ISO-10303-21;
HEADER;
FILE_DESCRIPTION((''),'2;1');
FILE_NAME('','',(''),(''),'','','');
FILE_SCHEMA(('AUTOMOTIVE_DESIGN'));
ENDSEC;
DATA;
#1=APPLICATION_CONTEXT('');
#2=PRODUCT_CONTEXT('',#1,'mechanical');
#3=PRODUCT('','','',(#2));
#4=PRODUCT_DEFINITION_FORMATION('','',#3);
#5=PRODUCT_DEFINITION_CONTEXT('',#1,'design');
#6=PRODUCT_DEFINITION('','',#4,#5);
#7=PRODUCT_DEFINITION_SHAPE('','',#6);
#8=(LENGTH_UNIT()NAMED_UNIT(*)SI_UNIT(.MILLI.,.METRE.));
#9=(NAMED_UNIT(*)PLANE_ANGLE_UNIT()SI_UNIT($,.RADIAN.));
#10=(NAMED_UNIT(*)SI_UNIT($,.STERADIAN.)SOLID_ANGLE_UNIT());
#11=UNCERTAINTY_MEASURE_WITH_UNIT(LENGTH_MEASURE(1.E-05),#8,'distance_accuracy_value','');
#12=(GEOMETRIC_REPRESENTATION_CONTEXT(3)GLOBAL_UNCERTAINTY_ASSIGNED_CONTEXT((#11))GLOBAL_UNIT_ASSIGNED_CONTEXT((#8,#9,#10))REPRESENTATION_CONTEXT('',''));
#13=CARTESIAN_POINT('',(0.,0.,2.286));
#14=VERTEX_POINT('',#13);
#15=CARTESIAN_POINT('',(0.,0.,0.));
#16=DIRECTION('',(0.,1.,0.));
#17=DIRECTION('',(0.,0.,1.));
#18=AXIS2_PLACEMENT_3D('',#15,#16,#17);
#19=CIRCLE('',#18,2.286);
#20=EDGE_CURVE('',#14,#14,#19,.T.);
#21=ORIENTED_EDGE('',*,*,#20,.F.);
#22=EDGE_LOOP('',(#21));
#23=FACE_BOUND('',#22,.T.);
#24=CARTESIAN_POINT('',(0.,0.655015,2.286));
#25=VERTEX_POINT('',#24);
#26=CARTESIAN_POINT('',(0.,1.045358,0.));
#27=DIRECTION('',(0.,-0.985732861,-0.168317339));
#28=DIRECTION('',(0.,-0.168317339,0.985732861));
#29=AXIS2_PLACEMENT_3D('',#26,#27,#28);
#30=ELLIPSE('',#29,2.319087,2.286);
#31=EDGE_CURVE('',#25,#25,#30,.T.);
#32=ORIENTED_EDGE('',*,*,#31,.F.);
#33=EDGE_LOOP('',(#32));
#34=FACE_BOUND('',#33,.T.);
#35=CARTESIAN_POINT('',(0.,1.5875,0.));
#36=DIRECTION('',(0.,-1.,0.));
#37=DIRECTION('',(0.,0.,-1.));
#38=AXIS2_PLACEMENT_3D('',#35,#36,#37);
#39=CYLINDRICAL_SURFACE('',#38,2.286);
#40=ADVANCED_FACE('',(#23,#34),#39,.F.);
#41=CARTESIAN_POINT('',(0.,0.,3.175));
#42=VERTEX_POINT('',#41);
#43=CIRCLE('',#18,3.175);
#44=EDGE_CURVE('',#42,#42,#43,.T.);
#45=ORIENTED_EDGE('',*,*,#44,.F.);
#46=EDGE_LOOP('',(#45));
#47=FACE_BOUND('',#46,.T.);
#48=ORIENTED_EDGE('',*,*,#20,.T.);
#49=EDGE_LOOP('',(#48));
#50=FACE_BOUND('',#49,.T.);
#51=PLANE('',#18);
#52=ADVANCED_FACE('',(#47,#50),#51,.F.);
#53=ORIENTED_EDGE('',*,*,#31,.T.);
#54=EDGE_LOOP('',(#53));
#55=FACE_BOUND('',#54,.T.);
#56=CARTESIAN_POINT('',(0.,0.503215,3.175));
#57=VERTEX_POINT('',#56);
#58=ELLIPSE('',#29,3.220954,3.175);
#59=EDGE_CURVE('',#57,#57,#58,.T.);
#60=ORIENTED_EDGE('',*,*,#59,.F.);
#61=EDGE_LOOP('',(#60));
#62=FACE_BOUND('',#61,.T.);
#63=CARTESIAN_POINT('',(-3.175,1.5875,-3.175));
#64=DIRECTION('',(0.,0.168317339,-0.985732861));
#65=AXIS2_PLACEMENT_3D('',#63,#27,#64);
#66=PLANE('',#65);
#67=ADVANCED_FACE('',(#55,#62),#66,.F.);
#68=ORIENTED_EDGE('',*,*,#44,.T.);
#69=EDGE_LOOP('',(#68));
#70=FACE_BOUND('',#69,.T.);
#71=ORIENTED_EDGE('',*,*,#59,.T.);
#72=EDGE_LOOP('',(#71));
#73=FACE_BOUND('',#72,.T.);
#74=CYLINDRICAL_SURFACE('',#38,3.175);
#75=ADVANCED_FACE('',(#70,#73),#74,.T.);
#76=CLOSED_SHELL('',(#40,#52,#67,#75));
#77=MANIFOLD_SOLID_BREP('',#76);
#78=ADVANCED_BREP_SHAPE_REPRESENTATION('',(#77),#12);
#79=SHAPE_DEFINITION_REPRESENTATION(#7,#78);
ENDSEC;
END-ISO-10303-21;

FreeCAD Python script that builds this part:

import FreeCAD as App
import Part
import Sketcher

V = App.Vector
Q = App.Units.Quantity

doc = App.newDocument("Part")
body = doc.addObject("PartDesign::Body", "Body")

sketch1 = doc.addObject("Sketcher::SketchObject", "Sketch")
body.addObject(sketch1)
sketch1.AttachmentSupport = (doc.XZ_Plane, [""])
sketch1.MapMode = "FlatFace"
sketch1.addGeometry(Part.Circle(V(0, 0, 0), V(0, 0, 1), 3.2), False)
sketch1.addConstraint(Sketcher.Constraint("Coincident", 0, 3, -1, 1))
sketch1.addConstraint(Sketcher.Constraint("Diameter", 0, Q("0.25 in")))
pad1 = doc.addObject("PartDesign::Pad", "Pad")
body.addObject(pad1)
pad1.Profile = sketch1
pad1.Length = Q("0.0625 in")
pad1.Reversed = True

sketch2 = doc.addObject("Sketcher::SketchObject", "Sketch001")
body.addObject(sketch2)
sketch2.AttachmentSupport = (doc.YZ_Plane, [""])
sketch2.MapMode = "FlatFace"
sketch2.addGeometry(Part.LineSegment(V(0.5, 3.2, 0), V(1.6, -3.2, 0)), False)
sketch2.addGeometry(Part.LineSegment(V(1.6, -3.2, 0), V(1.6, 3.2, 0)), False)
sketch2.addGeometry(Part.LineSegment(V(1.6, 3.2, 0), V(0.5, 3.2, 0)), False)
sketch2.addConstraint(Sketcher.Constraint("Coincident", 0, 2, 1, 1))
sketch2.addConstraint(Sketcher.Constraint("Coincident", 1, 2, 2, 1))
sketch2.addConstraint(Sketcher.Constraint("Coincident", 2, 2, 0, 1))
sketch2.addConstraint(Sketcher.Constraint("Vertical", 1))
sketch2.addConstraint(Sketcher.Constraint("Horizontal", 2))
sketch2.addConstraint(Sketcher.Constraint("DistanceY", 1, 1, 1, 2, Q("0.25 in")))
sketch2.addConstraint(Sketcher.Constraint("Angle", 0, Q("-80.31 deg")))
sketch2.addConstraint(Sketcher.Constraint("DistanceX", -1, 1, 0, 2, Q("0.0625 in")))
sketch2.addConstraint(Sketcher.Constraint("DistanceY", 0, 2, -1, 1, Q("0.125 in")))
pocket1 = doc.addObject("PartDesign::Pocket", "Pocket")
body.addObject(pocket1)
pocket1.Profile = sketch2
pocket1.Type = "ThroughAll"
pocket1.Midplane = True

sketch3 = doc.addObject("Sketcher::SketchObject", "Sketch002")
body.addObject(sketch3)
sketch3.AttachmentSupport = (doc.XZ_Plane, [""])
sketch3.MapMode = "FlatFace"
sketch3.addGeometry(Part.Circle(V(0, 0, 0), V(0, 0, 1), 2.3), False)
sketch3.addConstraint(Sketcher.Constraint("Coincident", 0, 3, -1, 1))
sketch3.addConstraint(Sketcher.Constraint("Diameter", 0, Q("0.18 in")))
pocket2 = doc.addObject("PartDesign::Pocket", "Pocket001")
body.addObject(pocket2)
pocket2.Profile = sketch3
pocket2.Type = "ThroughAll"
pocket2.Midplane = True

doc.recompute()
